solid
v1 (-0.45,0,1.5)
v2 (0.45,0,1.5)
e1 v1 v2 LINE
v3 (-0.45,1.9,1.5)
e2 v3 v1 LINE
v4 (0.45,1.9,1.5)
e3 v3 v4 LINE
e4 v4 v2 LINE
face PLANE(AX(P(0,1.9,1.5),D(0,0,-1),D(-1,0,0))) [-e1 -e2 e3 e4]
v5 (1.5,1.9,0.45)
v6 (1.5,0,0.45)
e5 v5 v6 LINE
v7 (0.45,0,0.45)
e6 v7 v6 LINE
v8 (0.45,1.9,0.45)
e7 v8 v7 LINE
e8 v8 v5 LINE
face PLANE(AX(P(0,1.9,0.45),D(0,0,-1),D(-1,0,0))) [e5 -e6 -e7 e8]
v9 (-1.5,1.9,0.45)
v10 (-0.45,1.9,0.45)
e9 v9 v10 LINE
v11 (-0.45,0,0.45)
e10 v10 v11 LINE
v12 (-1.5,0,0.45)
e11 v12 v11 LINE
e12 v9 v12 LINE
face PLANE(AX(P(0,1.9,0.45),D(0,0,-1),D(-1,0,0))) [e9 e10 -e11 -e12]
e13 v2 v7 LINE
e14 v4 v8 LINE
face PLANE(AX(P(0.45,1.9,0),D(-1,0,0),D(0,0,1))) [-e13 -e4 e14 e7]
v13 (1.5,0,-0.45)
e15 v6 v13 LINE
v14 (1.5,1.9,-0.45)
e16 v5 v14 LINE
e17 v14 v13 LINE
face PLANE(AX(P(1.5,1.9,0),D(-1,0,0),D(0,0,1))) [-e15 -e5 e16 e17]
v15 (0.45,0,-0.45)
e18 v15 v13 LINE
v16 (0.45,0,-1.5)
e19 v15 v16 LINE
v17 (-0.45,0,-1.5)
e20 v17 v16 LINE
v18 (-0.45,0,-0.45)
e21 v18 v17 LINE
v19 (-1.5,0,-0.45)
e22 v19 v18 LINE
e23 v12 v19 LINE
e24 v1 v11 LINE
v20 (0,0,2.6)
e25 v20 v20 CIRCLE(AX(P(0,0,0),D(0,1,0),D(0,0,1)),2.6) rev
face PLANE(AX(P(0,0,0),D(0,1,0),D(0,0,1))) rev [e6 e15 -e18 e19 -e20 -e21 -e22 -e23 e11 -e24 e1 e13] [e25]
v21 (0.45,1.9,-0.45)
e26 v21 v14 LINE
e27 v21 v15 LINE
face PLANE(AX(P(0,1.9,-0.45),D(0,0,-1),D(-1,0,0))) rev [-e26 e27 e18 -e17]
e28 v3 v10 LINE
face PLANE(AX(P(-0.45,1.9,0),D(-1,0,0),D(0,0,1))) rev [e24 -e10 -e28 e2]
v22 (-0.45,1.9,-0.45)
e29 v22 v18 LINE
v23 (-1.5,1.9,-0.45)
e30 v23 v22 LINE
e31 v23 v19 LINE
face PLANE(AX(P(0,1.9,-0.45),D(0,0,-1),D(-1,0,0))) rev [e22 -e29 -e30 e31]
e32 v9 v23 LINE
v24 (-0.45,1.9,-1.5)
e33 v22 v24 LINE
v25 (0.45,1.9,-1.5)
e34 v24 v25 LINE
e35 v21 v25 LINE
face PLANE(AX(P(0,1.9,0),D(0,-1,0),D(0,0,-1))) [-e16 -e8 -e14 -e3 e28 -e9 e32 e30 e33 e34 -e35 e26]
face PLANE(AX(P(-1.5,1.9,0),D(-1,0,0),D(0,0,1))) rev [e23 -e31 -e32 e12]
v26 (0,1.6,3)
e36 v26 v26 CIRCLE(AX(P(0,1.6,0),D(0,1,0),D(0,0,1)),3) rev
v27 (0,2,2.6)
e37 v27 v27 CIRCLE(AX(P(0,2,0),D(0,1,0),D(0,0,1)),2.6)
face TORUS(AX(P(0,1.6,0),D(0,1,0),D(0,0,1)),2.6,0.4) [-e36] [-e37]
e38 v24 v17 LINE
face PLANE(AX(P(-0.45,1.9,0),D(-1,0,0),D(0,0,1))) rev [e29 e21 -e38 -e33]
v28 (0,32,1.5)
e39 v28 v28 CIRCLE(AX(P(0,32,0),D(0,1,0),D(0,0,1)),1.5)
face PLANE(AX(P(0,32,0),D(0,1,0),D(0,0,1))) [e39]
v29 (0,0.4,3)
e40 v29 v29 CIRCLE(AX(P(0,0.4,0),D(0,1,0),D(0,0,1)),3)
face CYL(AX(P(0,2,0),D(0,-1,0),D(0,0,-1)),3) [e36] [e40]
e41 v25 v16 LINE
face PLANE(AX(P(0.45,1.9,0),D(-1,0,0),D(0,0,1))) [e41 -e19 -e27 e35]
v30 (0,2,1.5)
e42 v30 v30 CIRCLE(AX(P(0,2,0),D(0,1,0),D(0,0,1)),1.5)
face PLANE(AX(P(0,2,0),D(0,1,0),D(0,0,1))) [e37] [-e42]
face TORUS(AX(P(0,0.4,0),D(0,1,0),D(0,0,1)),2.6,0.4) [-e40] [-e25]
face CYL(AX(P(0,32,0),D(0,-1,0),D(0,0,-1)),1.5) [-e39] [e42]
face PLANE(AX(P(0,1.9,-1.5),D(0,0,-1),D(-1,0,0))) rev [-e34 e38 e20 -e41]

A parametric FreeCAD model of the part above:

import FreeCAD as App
import Part
import Sketcher
from FreeCAD import Vector
Q = App.Units.Quantity


def edges_at(feature, points):
    """Names of the edges that pass closest to the given points."""
    edges = feature.Shape.Edges
    near = lambda p: min(range(len(edges)), key=lambda i: edges[i].distToShape(Part.Vertex(*p))[0])
    return sorted({f"Edge{near(p) + 1}" for p in points})

doc = App.newDocument("Part")
params = doc.addObject("Spreadsheet::Sheet", "Params")
for row, (alias, value) in enumerate([
    ("sketch1_diameter", "6 mm"),
    ("pad1_length", "2 mm"),
    ("sketch2_diameter", "3 mm"),
    ("pad2_length", "30 mm"),
    ("sketch3_width", "0.9 mm"),
    ("pocket1_length", "1.9 mm"),
    ("fillet_radius", "0.4 mm"),
], start=1):
    params.set(f"A{row}", alias)
    params.set(f"B{row}", "=" + value)
    params.setAlias(f"B{row}", alias)

body = doc.addObject("PartDesign::Body", "Body")

# Sketch on XZ plane
sketch1 = body.newObject("Sketcher::SketchObject", "Sketch")
sketch1.AttachmentSupport = (doc.getObject("XZ_Plane"), [""])
sketch1.MapMode = "FlatFace"
sketch1.addGeometry(Part.Circle(Vector(0, 0, 0), Vector(0, 0, 1), 3), False)
sketch1.addConstraint([
    Sketcher.Constraint("Coincident", 0, 3, -1, 1),
    Sketcher.Constraint("Diameter", 0, Q("6 mm")),
])
sketch1.setExpression("Constraints[1]", "Params.sketch1_diameter")
pad1 = body.newObject("PartDesign::Pad", "Pad")
pad1.Profile = sketch1
pad1.setExpression("Length", "Params.pad1_length")
pad1.Reversed = True

# Sketch on XZ plane
sketch2 = body.newObject("Sketcher::SketchObject", "Sketch001")
sketch2.AttachmentSupport = (doc.getObject("XZ_Plane"), [""])
sketch2.MapMode = "FlatFace"
sketch2.AttachmentOffset = App.Placement(Vector(0, 0, -2), App.Rotation())
sketch2.addGeometry(Part.Circle(Vector(0, 0, 0), Vector(0, 0, 1), 1.5), False)
sketch2.addConstraint([
    Sketcher.Constraint("Coincident", 0, 3, -1, 1),
    Sketcher.Constraint("Diameter", 0, Q("3 mm")),
])
sketch2.setExpression("Constraints[1]", "Params.sketch2_diameter")
pad2 = body.newObject("PartDesign::Pad", "Pad001")
pad2.Profile = sketch2
pad2.setExpression("Length", "Params.pad2_length")
pad2.Reversed = True

# Sketch on XZ plane
sketch3 = body.newObject("Sketcher::SketchObject", "Sketch002")
sketch3.AttachmentSupport = (doc.getObject("XZ_Plane"), [""])
sketch3.MapMode = "FlatFace"
sketch3.addGeometry([
    Part.LineSegment(Vector(0.45, 0.45, 0), Vector(0.45, 1.5, 0)),  # 0
    Part.LineSegment(Vector(0.45, 1.5, 0), Vector(-0.45, 1.5, 0)),  # 1
    Part.LineSegment(Vector(-0.45, 1.5, 0), Vector(-0.45, 0.45, 0)),  # 2
    Part.LineSegment(Vector(-0.45, 0.45, 0), Vector(-1.5, 0.45, 0)),  # 3
    Part.LineSegment(Vector(-1.5, 0.45, 0), Vector(-1.5, -0.45, 0)),  # 4
    Part.LineSegment(Vector(-1.5, -0.45, 0), Vector(-0.45, -0.45, 0)),  # 5
    Part.LineSegment(Vector(-0.45, -0.45, 0), Vector(-0.45, -1.5, 0)),  # 6
    Part.LineSegment(Vector(-0.45, -1.5, 0), Vector(0.45, -1.5, 0)),  # 7
    Part.LineSegment(Vector(0.45, -1.5, 0), Vector(0.45, -0.45, 0)),  # 8
    Part.LineSegment(Vector(0.45, -0.45, 0), Vector(1.5, -0.45, 0)),  # 9
    Part.LineSegment(Vector(1.5, -0.45, 0), Vector(1.5, 0.45, 0)),  # 10
    Part.LineSegment(Vector(1.5, 0.45, 0), Vector(0.45, 0.45, 0)),  # 11
], False)
sketch3.addConstraint([
    Sketcher.Constraint("Coincident", 0, 2, 1, 1),
    Sketcher.Constraint("Coincident", 1, 2, 2, 1),
    Sketcher.Constraint("Coincident", 2, 2, 3, 1),
    Sketcher.Constraint("Coincident", 3, 2, 4, 1),
    Sketcher.Constraint("Coincident", 4, 2, 5, 1),
    Sketcher.Constraint("Coincident", 5, 2, 6, 1),
    Sketcher.Constraint("Coincident", 6, 2, 7, 1),
    Sketcher.Constraint("Coincident", 7, 2, 8, 1),
    Sketcher.Constraint("Coincident", 8, 2, 9, 1),
    Sketcher.Constraint("Coincident", 9, 2, 10, 1),
    Sketcher.Constraint("Coincident", 10, 2, 11, 1),
    Sketcher.Constraint("Coincident", 11, 2, 0, 1),
    Sketcher.Constraint("Vertical", 0),
    Sketcher.Constraint("Horizontal", 1),
    Sketcher.Constraint("Vertical", 2),
    Sketcher.Constraint("Horizontal", 3),
    Sketcher.Constraint("Vertical", 4),
    Sketcher.Constraint("Horizontal", 5),
    Sketcher.Constraint("Vertical", 6),
    Sketcher.Constraint("Horizontal", 7),
    Sketcher.Constraint("Vertical", 8),
    Sketcher.Constraint("Horizontal", 9),
    Sketcher.Constraint("Vertical", 10),
    Sketcher.Constraint("Horizontal", 11),
    Sketcher.Constraint("Symmetric", 0, 2, 6, 2, -1, 1),
    Sketcher.Constraint("Symmetric", 2, 2, 8, 2, -1, 1),
    Sketcher.Constraint("Symmetric", 4, 2, 10, 2, -1, 1),
    Sketcher.Constraint("Symmetric", 5, 2, 8, 2, -2),
    Sketcher.Constraint("Equal", 11, 0),
    Sketcher.Constraint("Equal", 7, 4),
    Sketcher.Constraint("DistanceX", 1, 2, 1, 1, Q("0.9 mm")),
    Sketcher.Constraint("DistanceY", 6, 2, 1, 2, Q("3 mm")),
])
sketch3.setExpression("Constraints[30]", "Params.sketch3_width")
pocket1 = body.newObject("PartDesign::Pocket", "Pocket")
pocket1.Profile = sketch3
pocket1.setExpression("Length", "Params.pocket1_length")
doc.recompute()

fillet = body.newObject("PartDesign::Fillet", "Fillet")
fillet.Base = (pocket1, edges_at(pocket1, [(-3, 0, 0), (-3, 2, 0)]))
fillet.setExpression("Radius", "Params.fillet_radius")

doc.recompute()
